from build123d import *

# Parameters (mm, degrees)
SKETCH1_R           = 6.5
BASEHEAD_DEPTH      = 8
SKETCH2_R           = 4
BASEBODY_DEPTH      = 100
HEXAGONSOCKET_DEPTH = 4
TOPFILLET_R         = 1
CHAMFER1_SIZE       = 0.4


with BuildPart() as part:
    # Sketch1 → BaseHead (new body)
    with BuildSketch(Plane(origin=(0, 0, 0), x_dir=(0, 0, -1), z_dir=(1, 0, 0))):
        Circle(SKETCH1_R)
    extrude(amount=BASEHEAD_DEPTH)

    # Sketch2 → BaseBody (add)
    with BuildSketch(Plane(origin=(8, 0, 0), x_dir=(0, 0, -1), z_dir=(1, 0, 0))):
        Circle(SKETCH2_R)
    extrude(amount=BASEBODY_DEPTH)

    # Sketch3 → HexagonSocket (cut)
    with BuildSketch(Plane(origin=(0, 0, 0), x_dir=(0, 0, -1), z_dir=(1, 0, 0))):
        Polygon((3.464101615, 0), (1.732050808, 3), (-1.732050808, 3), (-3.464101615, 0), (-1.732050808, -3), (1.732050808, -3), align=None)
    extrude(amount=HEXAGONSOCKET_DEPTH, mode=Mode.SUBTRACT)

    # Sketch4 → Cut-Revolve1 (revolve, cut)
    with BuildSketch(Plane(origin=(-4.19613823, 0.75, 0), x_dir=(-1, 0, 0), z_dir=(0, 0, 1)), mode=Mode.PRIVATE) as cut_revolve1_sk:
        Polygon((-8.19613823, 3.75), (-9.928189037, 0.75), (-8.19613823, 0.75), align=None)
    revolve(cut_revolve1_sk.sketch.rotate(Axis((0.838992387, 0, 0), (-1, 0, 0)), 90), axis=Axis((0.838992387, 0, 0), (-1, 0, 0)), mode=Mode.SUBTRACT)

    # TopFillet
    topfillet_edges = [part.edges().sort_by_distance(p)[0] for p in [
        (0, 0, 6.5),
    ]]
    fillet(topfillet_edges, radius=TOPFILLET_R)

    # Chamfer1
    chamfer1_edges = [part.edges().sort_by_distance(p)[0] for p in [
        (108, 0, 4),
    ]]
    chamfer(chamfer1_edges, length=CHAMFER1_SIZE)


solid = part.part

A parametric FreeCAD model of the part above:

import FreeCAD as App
import Part
import Sketcher
from FreeCAD import Vector
Q = App.Units.Quantity


def edges_at(feature, points):
    """Names of the edges that pass closest to the given points."""
    edges = feature.Shape.Edges
    near = lambda p: min(range(len(edges)), key=lambda i: edges[i].distToShape(Part.Vertex(*p))[0])
    return sorted({f"Edge{near(p) + 1}" for p in points})


def add_polygon(sketch, points):
    """Adds a closed chain of lines whose ends are joined by coincident constraints."""
    first, n = sketch.GeometryCount, len(points)
    for a, b in zip(points, points[1:] + points[:1]):
        sketch.addGeometry(Part.LineSegment(App.Vector(*a, 0), App.Vector(*b, 0)), False)
    for i in range(n):
        sketch.addConstraint(Sketcher.Constraint("Coincident", first + i, 2, first + (i + 1) % n, 1))

doc = App.newDocument("Part")
body = doc.addObject("PartDesign::Body", "Body")

sketch1 = body.newObject("Sketcher::SketchObject", "Sketch")
sketch1.AttachmentSupport = (doc.getObject("YZ_Plane"), [""])
sketch1.MapMode = "FlatFace"
sketch1.addGeometry(Part.Circle(Vector(0, 0, 0), Vector(0, 0, 1), 6), False)
sketch1.addConstraint([
    Sketcher.Constraint("Coincident", 0, 3, -1, 1),
    Sketcher.Constraint("Diameter", 0, 13.0),
])
pad1 = body.newObject("PartDesign::Pad", "Pad")
pad1.Profile = sketch1
pad1.Length = 8

sketch2 = body.newObject("Sketcher::SketchObject", "Sketch001")
sketch2.AttachmentSupport = (doc.getObject("YZ_Plane"), [""])
sketch2.MapMode = "FlatFace"
sketch2.AttachmentOffset = App.Placement(Vector(0, 0, 8), App.Rotation())
sketch2.addGeometry(Part.Circle(Vector(0, 0, 0), Vector(0, 0, 1), 4), False)
sketch2.addConstraint([
    Sketcher.Constraint("Coincident", 0, 3, -1, 1),
    Sketcher.Constraint("Diameter", 0, 8.0),
])
pad2 = body.newObject("PartDesign::Pad", "Pad001")
pad2.Profile = sketch2
pad2.Length = 100

sketch3 = body.newObject("Sketcher::SketchObject", "Sketch002")
sketch3.AttachmentSupport = (doc.getObject("YZ_Plane"), [""])
sketch3.MapMode = "FlatFace"
add_polygon(sketch3, [(0, -3.5), (3, -1.7), (3, 1.7), (0, 3.5), (-3, 1.7), (-3, -1.7)])
sketch3.addConstraint([
    Sketcher.Constraint("Vertical", 1),
    Sketcher.Constraint("Vertical", 4),
    Sketcher.Constraint("Symmetric", 0, 2, 3, 2, -1, 1),
    Sketcher.Constraint("Symmetric", 2, 2, 5, 2, -1, 1),
    Sketcher.Constraint("PointOnObject", 2, 2, -2),
    Sketcher.Constraint("Parallel", 2, 5),
    Sketcher.Constraint("Horizontal", 1, 2, 3, 2),
    Sketcher.Constraint("Angle", 0, Q("30 deg")),
    Sketcher.Constraint("DistanceX", -1, 1, 0, 2, 3.0),
    Sketcher.Constraint("DistanceY", 1, 1, 1, 2, 3.464102),
])
pocket1 = body.newObject("PartDesign::Pocket", "Pocket")
pocket1.Profile = sketch3
pocket1.Length = 4
pocket1.Reversed = True

sketch4 = body.newObject("Sketcher::SketchObject", "Sketch003")
sketch4.AttachmentSupport = (doc.getObject("XY_Plane"), [""])
sketch4.MapMode = "FlatFace"
add_polygon(sketch4, [(4, -3), (5.7, 0), (4, 0)])
sketch4.addConstraint([
    Sketcher.Constraint("Horizontal", 1),
    Sketcher.Constraint("Vertical", 2),
    Sketcher.Constraint("PointOnObject", 0, 2, -1),
    Sketcher.Constraint("DistanceY", 2, 2, 2, 1, 3.0),
    Sketcher.Constraint("Angle", 0, Q("60 deg")),
    Sketcher.Constraint("DistanceX", -1, 1, 1, 2, 4.0),
])
groove = body.newObject("PartDesign::Groove", "Groove")
groove.Profile = sketch4
groove.ReferenceAxis = (sketch4, ["H_Axis"])
groove.Angle = 360
doc.recompute()

fillet = body.newObject("PartDesign::Fillet", "Fillet")
fillet.Base = (groove, edges_at(groove, [(0, 0, 6.5)]))
fillet.Radius = 1
doc.recompute()

chamfer = body.newObject("PartDesign::Chamfer", "Chamfer")
chamfer.Base = (fillet, edges_at(fillet, [(108, 0, 4)]))
chamfer.Size = 0.4

doc.recompute()
